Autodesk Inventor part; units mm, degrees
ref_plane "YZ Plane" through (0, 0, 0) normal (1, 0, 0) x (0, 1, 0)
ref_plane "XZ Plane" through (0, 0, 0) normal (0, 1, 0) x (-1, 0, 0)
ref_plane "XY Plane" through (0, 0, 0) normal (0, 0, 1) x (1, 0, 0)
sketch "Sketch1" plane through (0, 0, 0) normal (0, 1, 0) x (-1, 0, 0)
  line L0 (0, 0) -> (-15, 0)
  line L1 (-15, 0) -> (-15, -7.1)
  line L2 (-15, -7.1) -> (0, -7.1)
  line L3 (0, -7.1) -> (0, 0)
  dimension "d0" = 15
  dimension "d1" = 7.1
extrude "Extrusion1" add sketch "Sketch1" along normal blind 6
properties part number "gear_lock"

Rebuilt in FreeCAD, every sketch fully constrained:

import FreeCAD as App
import Part
import Sketcher
from FreeCAD import Vector
Q = App.Units.Quantity

doc = App.newDocument("Part")
body = doc.addObject("PartDesign::Body", "Body")

# Sketch on XZ plane
sketch1 = body.newObject("Sketcher::SketchObject", "Sketch")
sketch1.AttachmentSupport = (doc.getObject("XZ_Plane"), [""])
sketch1.MapMode = "FlatFace"
sketch1.addGeometry([
    Part.LineSegment(Vector(0, -7, 0), Vector(0, 0, 0)),
    Part.LineSegment(Vector(0, 0, 0), Vector(15, 0, 0)),
    Part.LineSegment(Vector(15, 0, 0), Vector(15, -7, 0)),
    Part.LineSegment(Vector(15, -7, 0), Vector(0, -7, 0)),
], False)
sketch1.addConstraint([
    Sketcher.Constraint("Coincident", 0, 2, 1, 1),
    Sketcher.Constraint("Coincident", 1, 2, 2, 1),
    Sketcher.Constraint("Coincident", 2, 2, 3, 1),
    Sketcher.Constraint("Coincident", 3, 2, 0, 1),
    Sketcher.Constraint("Vertical", 0),
    Sketcher.Constraint("Horizontal", 1),
    Sketcher.Constraint("Vertical", 2),
    Sketcher.Constraint("Horizontal", 3),
    Sketcher.Constraint("Coincident", 0, 2, -1, 1),
    Sketcher.Constraint("DistanceX", 1, 1, 1, 2, Q("15 mm")),
    Sketcher.Constraint("DistanceY", 0, 1, 0, 2, Q("7.1 mm")),
])
pad1 = body.newObject("PartDesign::Pad", "Pad")
pad1.Profile = sketch1
pad1.Length = 6
pad1.Reversed = True

doc.recompute()
